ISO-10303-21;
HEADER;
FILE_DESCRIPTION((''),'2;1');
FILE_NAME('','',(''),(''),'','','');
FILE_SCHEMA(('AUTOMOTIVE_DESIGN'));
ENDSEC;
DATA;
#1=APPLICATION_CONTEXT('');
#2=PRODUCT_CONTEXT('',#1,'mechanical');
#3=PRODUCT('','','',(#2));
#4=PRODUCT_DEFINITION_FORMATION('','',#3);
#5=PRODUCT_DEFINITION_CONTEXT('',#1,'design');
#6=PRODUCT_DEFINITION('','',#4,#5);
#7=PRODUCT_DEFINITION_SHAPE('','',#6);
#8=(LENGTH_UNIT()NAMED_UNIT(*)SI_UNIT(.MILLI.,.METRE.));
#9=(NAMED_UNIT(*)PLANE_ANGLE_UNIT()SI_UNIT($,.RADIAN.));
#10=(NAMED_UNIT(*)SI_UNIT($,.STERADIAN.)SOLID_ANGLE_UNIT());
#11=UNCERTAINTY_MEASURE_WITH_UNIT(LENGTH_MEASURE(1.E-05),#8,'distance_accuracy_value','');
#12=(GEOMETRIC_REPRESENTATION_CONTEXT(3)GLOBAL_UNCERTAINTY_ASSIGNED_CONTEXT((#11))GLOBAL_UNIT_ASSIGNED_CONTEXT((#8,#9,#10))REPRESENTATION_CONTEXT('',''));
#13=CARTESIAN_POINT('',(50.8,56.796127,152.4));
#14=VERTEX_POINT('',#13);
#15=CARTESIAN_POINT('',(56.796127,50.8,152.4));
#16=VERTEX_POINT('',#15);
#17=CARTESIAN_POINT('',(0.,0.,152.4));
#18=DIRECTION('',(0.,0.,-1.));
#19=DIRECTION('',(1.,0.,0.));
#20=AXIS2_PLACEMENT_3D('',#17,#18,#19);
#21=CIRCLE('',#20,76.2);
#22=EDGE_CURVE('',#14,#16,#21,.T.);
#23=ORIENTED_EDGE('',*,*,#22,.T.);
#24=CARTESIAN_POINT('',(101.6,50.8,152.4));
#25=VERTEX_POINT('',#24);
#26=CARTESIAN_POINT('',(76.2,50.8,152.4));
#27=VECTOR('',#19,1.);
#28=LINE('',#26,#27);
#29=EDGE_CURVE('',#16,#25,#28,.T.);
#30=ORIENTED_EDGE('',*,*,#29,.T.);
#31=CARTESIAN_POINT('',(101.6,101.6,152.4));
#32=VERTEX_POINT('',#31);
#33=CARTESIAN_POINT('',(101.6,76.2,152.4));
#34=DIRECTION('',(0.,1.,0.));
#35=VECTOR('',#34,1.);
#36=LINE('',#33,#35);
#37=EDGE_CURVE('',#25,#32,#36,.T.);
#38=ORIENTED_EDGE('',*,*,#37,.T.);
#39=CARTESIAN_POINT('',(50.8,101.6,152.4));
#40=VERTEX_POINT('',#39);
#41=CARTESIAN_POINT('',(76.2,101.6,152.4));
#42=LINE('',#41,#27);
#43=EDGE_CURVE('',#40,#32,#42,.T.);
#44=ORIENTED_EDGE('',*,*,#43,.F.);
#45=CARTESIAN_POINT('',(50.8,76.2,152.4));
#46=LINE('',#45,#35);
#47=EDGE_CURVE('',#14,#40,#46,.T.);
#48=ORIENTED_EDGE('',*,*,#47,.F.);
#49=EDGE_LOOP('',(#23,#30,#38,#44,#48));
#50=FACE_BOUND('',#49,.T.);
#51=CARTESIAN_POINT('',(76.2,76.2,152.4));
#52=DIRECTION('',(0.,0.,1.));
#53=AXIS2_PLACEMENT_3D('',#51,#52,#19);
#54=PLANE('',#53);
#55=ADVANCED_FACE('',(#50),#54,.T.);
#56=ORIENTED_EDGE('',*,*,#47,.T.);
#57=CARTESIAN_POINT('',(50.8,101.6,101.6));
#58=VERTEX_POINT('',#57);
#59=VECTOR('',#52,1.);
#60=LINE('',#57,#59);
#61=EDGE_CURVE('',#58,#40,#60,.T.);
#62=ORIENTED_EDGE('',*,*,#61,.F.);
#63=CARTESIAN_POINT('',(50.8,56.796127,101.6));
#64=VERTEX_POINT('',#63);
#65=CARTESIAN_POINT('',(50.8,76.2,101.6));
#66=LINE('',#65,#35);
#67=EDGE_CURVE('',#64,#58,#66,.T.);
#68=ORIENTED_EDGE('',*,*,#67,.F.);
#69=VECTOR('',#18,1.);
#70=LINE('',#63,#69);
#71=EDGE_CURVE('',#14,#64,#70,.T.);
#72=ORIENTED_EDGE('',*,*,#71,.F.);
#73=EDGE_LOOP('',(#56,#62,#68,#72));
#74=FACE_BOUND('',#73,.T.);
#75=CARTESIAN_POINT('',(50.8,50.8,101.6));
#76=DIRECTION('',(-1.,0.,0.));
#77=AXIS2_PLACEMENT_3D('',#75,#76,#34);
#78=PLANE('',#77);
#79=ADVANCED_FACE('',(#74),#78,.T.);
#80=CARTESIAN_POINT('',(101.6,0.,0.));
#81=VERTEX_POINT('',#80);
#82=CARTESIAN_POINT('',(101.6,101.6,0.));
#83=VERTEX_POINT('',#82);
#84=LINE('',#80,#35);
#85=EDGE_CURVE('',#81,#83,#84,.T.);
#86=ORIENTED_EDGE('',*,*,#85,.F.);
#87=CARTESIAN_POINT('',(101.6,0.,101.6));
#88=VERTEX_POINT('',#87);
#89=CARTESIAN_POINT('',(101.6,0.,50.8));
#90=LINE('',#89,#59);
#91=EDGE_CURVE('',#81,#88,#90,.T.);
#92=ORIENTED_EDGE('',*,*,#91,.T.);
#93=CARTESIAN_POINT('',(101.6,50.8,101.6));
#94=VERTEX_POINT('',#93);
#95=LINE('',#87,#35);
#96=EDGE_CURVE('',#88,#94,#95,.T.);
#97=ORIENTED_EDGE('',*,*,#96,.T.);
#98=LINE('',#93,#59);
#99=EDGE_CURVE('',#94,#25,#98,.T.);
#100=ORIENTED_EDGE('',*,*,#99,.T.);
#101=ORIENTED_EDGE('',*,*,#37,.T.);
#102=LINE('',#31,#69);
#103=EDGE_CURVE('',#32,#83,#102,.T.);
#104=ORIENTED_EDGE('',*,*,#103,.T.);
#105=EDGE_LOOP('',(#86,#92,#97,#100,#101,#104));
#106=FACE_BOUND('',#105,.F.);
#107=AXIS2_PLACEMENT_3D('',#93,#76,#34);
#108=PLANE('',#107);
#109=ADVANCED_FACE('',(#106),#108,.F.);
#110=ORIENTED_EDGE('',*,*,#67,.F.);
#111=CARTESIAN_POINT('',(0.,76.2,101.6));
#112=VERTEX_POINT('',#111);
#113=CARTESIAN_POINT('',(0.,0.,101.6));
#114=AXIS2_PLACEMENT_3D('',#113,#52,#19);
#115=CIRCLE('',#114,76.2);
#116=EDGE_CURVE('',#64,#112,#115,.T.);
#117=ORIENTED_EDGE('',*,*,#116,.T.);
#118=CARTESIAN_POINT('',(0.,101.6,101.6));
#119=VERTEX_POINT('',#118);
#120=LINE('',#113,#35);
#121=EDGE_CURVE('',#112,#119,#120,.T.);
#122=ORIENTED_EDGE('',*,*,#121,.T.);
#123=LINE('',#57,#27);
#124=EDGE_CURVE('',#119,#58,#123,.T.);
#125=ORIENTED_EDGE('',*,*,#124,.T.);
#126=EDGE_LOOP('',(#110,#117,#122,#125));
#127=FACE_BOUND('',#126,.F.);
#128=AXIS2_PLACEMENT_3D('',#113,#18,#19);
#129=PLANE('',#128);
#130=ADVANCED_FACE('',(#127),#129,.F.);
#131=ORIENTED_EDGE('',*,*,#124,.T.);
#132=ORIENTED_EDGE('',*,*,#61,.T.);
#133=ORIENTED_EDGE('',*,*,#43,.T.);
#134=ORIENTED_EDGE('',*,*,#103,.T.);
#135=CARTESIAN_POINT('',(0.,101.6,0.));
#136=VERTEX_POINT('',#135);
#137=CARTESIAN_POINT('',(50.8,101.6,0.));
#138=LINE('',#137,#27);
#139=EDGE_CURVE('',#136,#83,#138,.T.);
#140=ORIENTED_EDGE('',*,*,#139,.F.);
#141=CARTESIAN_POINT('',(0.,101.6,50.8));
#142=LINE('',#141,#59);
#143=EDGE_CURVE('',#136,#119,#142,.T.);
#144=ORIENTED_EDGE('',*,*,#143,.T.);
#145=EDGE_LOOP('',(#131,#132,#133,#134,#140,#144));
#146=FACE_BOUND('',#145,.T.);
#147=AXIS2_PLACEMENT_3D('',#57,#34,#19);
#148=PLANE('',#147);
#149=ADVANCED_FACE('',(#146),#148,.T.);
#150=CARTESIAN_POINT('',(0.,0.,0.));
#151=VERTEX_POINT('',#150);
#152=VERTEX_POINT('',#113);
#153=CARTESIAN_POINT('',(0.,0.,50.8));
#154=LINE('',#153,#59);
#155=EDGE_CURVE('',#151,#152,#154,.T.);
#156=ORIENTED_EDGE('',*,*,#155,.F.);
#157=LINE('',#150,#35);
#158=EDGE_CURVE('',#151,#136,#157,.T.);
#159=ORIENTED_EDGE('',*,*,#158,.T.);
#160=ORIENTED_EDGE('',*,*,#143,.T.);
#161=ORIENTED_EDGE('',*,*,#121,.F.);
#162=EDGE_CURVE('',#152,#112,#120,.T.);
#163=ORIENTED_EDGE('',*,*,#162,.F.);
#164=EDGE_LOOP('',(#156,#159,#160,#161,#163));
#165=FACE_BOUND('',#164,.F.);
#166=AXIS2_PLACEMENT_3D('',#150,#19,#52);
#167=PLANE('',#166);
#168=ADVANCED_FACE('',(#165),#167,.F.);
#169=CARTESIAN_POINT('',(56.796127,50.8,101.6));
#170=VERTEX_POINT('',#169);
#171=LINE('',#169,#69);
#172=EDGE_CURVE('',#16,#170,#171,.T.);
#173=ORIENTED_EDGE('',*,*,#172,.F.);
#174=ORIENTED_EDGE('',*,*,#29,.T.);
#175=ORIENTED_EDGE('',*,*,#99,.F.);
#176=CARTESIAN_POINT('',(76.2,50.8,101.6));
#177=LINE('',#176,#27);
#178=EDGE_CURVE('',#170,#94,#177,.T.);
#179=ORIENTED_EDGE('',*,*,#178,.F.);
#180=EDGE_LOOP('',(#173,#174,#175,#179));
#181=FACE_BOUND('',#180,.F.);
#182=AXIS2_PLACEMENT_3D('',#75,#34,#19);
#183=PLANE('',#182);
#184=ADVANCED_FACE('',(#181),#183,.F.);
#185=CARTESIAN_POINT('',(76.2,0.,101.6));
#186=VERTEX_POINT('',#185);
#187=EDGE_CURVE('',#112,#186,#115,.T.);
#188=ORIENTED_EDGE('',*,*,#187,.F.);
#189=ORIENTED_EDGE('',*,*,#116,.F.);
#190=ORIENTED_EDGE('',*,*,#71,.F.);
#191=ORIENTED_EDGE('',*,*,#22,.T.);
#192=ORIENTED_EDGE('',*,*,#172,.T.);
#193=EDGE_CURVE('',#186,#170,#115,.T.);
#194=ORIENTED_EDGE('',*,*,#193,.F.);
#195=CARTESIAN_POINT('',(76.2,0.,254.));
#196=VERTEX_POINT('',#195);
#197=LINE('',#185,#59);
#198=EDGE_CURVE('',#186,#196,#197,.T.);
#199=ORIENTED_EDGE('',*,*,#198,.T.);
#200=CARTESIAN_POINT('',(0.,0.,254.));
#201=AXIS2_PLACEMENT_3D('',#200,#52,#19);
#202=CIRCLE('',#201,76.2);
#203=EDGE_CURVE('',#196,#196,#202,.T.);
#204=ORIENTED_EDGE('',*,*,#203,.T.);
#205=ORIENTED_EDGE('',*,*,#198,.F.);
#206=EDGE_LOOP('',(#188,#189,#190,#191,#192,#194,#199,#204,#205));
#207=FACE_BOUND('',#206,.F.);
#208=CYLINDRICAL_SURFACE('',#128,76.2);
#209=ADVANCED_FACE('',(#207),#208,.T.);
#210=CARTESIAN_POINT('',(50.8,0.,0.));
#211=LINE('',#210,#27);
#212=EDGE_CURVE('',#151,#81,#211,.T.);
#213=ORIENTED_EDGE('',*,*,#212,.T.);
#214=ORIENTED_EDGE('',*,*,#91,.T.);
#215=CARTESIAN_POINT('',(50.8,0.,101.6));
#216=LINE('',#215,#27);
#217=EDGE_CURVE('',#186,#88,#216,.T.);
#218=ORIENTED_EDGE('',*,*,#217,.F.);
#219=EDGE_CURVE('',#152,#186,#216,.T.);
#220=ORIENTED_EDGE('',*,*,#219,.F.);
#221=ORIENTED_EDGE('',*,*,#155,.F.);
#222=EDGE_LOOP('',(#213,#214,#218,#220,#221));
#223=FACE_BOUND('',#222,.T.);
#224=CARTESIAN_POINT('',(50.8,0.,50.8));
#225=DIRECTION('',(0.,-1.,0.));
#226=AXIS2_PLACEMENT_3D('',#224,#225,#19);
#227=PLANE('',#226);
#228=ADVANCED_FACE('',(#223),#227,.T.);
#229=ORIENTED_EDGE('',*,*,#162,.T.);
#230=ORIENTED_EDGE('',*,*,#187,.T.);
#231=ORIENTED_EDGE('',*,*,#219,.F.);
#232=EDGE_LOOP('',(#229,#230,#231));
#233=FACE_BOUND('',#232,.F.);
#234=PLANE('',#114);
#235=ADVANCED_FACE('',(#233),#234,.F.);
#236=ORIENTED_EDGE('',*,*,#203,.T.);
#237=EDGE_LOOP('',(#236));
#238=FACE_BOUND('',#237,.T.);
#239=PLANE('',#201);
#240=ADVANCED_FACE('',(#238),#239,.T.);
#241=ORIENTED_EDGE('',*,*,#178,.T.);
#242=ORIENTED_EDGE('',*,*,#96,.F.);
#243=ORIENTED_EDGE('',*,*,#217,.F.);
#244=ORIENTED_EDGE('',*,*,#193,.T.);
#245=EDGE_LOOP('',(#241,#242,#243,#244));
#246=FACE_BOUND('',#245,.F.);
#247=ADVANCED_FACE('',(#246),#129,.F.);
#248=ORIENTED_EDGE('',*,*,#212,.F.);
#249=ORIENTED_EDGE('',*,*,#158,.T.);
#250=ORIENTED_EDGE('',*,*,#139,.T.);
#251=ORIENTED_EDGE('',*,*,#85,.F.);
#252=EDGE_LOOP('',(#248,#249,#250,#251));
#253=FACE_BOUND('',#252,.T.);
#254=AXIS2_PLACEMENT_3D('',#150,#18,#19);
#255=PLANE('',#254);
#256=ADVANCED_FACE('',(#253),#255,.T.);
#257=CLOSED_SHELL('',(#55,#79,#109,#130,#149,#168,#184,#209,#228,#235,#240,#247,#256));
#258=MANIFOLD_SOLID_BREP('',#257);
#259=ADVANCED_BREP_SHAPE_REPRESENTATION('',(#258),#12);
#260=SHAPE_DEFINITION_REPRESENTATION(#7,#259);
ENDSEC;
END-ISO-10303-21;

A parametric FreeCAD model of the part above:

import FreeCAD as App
import Part
import Sketcher

V = App.Vector
Q = App.Units.Quantity

doc = App.newDocument("Part")
body = doc.addObject("PartDesign::Body", "Body")

# Sketch on XZ plane
sketch1 = body.newObject("Sketcher::SketchObject", "Sketch")
sketch1.AttachmentSupport = (doc.getObject("XZ_Plane"), [""])
sketch1.MapMode = "FlatFace"
sketch1.addGeometry(Part.LineSegment(V(0, 101.6, 0), V(0, 0, 0)), False)
sketch1.addGeometry(Part.LineSegment(V(0, 0, 0), V(101.6, 0, 0)), False)
sketch1.addGeometry(Part.LineSegment(V(101.6, 0, 0), V(101.6, 101.6, 0)), False)
sketch1.addGeometry(Part.LineSegment(V(101.6, 101.6, 0), V(0, 101.6, 0)), False)
sketch1.addConstraint(Sketcher.Constraint("Coincident", 0, 2, 1, 1))
sketch1.addConstraint(Sketcher.Constraint("Coincident", 1, 2, 2, 1))
sketch1.addConstraint(Sketcher.Constraint("Coincident", 2, 2, 3, 1))
sketch1.addConstraint(Sketcher.Constraint("Coincident", 3, 2, 0, 1))
sketch1.addConstraint(Sketcher.Constraint("Vertical", 0))
sketch1.addConstraint(Sketcher.Constraint("Horizontal", 1))
sketch1.addConstraint(Sketcher.Constraint("Vertical", 2))
sketch1.addConstraint(Sketcher.Constraint("Horizontal", 3))
sketch1.addConstraint(Sketcher.Constraint("Coincident", 0, 2, -1, 1))
sketch1.addConstraint(Sketcher.Constraint("Equal", 3, 0))
sketch1.addConstraint(Sketcher.Constraint("DistanceX", 1, 1, 1, 2, Q("4 in")))
pad1 = body.newObject("PartDesign::Pad", "Pad")
pad1.Profile = sketch1
pad1.Length = Q("4 in")
pad1.Reversed = True

# Sketch on XY plane
sketch2 = body.newObject("Sketcher::SketchObject", "Sketch001")
sketch2.AttachmentSupport = (doc.getObject("XY_Plane"), [""])
sketch2.MapMode = "FlatFace"
sketch2.AttachmentOffset = App.Placement(V(0, 0, 4 * 25.4), App.Rotation())
sketch2.addGeometry(Part.Circle(V(0, 0, 0), V(0, 0, 1), 76.2), False)
sketch2.addConstraint(Sketcher.Constraint("Coincident", 0, 3, -1, 1))
sketch2.addConstraint(Sketcher.Constraint("Diameter", 0, Q("6 in")))
pad2 = body.newObject("PartDesign::Pad", "Pad001")
pad2.Profile = sketch2
pad2.Length = Q("6 in")

# Sketch on XY plane
sketch3 = body.newObject("Sketcher::SketchObject", "Sketch002")
sketch3.AttachmentSupport = (doc.getObject("XY_Plane"), [""])
sketch3.MapMode = "FlatFace"
sketch3.AttachmentOffset = App.Placement(V(0, 0, 4 * 25.4), App.Rotation())
sketch3.addGeometry(Part.LineSegment(V(50.8, 101.6, 0), V(50.8, 50.8, 0)), False)
sketch3.addGeometry(Part.LineSegment(V(50.8, 50.8, 0), V(101.6, 50.8, 0)), False)
sketch3.addGeometry(Part.LineSegment(V(101.6, 50.8, 0), V(101.6, 101.6, 0)), False)
sketch3.addGeometry(Part.LineSegment(V(101.6, 101.6, 0), V(50.8, 101.6, 0)), False)
sketch3.addConstraint(Sketcher.Constraint("Coincident", 0, 2, 1, 1))
sketch3.addConstraint(Sketcher.Constraint("Coincident", 1, 2, 2, 1))
sketch3.addConstraint(Sketcher.Constraint("Coincident", 2, 2, 3, 1))
sketch3.addConstraint(Sketcher.Constraint("Coincident", 3, 2, 0, 1))
sketch3.addConstraint(Sketcher.Constraint("Vertical", 0))
sketch3.addConstraint(Sketcher.Constraint("Horizontal", 1))
sketch3.addConstraint(Sketcher.Constraint("Vertical", 2))
sketch3.addConstraint(Sketcher.Constraint("Horizontal", 3))
sketch3.addConstraint(Sketcher.Constraint("Equal", 3, 0))
sketch3.addConstraint(Sketcher.Constraint("DistanceX", 1, 1, 1, 2, Q("2 in")))
sketch3.addConstraint(Sketcher.Constraint("DistanceX", -1, 1, 0, 2, Q("2 in")))
sketch3.addConstraint(Sketcher.Constraint("DistanceY", -1, 1, 0, 2, Q("2 in")))
pad3 = body.newObject("PartDesign::Pad", "Pad002")
pad3.Profile = sketch3
pad3.Length = Q("2 in")

doc.recompute()
